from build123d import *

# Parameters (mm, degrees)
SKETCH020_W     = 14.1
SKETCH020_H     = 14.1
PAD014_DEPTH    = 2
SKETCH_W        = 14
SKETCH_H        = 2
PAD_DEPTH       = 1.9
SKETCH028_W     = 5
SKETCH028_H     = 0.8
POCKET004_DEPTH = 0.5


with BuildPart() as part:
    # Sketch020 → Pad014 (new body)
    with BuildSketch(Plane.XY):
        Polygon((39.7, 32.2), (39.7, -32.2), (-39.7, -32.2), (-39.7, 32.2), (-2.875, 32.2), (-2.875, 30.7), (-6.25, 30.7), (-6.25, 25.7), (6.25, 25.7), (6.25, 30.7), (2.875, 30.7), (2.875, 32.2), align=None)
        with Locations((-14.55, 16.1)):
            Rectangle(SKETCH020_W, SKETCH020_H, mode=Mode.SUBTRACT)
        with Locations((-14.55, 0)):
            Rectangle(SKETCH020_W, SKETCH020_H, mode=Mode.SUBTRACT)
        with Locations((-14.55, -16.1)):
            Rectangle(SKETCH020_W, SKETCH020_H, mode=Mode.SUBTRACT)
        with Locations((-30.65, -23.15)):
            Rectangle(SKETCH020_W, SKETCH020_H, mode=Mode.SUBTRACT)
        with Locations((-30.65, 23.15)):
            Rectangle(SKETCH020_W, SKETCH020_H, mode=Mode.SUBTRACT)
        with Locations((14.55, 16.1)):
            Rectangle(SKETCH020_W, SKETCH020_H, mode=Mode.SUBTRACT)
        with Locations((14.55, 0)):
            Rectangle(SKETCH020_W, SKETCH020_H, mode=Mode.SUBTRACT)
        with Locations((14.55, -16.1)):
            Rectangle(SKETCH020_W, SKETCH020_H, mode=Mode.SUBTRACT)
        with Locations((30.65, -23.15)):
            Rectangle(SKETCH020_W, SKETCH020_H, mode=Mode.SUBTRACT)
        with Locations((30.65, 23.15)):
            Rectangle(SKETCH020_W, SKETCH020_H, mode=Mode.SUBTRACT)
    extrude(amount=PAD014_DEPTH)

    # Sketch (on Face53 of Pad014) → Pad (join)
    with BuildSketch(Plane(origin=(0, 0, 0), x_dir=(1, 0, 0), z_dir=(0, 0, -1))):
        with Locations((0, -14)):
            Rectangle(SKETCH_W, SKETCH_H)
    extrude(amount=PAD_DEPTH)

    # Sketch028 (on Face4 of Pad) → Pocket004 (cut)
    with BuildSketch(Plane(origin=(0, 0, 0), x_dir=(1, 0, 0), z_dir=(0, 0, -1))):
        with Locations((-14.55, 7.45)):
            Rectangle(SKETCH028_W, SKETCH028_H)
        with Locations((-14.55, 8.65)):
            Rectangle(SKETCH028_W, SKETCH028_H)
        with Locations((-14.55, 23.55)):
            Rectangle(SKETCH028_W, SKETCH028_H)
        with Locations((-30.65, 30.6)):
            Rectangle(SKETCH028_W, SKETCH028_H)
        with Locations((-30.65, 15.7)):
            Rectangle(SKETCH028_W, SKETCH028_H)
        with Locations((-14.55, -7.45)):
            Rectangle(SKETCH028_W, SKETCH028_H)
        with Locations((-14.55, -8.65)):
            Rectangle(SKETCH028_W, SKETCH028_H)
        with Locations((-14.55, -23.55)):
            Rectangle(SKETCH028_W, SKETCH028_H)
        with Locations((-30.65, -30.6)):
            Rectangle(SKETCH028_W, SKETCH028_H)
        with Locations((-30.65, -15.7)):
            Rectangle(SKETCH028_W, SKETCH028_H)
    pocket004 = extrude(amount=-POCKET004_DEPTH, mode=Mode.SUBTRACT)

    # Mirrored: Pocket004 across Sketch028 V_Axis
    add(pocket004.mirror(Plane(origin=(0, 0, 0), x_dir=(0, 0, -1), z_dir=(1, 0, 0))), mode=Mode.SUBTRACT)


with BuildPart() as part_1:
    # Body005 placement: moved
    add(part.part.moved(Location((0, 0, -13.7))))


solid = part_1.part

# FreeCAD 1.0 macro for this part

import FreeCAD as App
import Part
import Sketcher

V = App.Vector
Q = App.Units.Quantity


def add_polygon(sketch, points):
    """Adds a closed chain of lines whose ends are joined by coincident constraints."""
    first, n = sketch.GeometryCount, len(points)
    for a, b in zip(points, points[1:] + points[:1]):
        sketch.addGeometry(Part.LineSegment(App.Vector(*a, 0), App.Vector(*b, 0)), False)
    for i in range(n):
        sketch.addConstraint(Sketcher.Constraint("Coincident", first + i, 2, first + (i + 1) % n, 1))

doc = App.newDocument("Part")
body = doc.addObject("PartDesign::Body", "Body")

# Sketch on XY plane
sketch1 = body.newObject("Sketcher::SketchObject", "Sketch")
sketch1.AttachmentSupport = (doc.getObject("XY_Plane"), [""])
sketch1.MapMode = "FlatFace"
add_polygon(sketch1, [(39.7, -32.2), (39.7, 32.2), (2.875, 32.2), (2.875, 30.7), (6.25, 30.7), (6.25, 25.7), (-6.25, 25.7), (-6.25, 30.7), (-2.875, 30.7), (-2.875, 32.2), (-39.7, 32.2), (-39.7, -32.2)])  # lines 0-11
add_polygon(sketch1, [(23.6, -30.2), (23.6, -16.1), (37.7, -16.1), (37.7, -30.2)])  # lines 12-15
add_polygon(sketch1, [(7.5, -23.15), (7.5, -9.05), (21.6, -9.05), (21.6, -23.15)])  # lines 16-19
add_polygon(sketch1, [(-21.6, -23.15), (-21.6, -9.05), (-7.5, -9.05), (-7.5, -23.15)])  # lines 20-23
add_polygon(sketch1, [(-37.7, -30.2), (-37.7, -16.1), (-23.6, -16.1), (-23.6, -30.2)])  # lines 24-27
add_polygon(sketch1, [(7.5, -7.05), (7.5, 7.05), (21.6, 7.05), (21.6, -7.05)])  # lines 28-31
add_polygon(sketch1, [(23.6, 16.1), (23.6, 30.2), (37.7, 30.2), (37.7, 16.1)])  # lines 32-35
add_polygon(sketch1, [(7.5, 9.05), (7.5, 23.15), (21.6, 23.15), (21.6, 9.05)])  # lines 36-39
add_polygon(sketch1, [(-21.6, -7.05), (-21.6, 7.05), (-7.5, 7.05), (-7.5, -7.05)])  # lines 40-43
add_polygon(sketch1, [(-21.6, 9.05), (-21.6, 23.15), (-7.5, 23.15), (-7.5, 9.05)])  # lines 44-47
add_polygon(sketch1, [(-37.7, 16.1), (-37.7, 30.2), (-23.6, 30.2), (-23.6, 16.1)])  # lines 48-51
sketch1.addConstraint([
    Sketcher.Constraint("Vertical", 0),
    Sketcher.Constraint("Horizontal", 1),
    Sketcher.Constraint("Vertical", 2),
    Sketcher.Constraint("Horizontal", 3),
    Sketcher.Constraint("Vertical", 4),
    Sketcher.Constraint("Horizontal", 5),
    Sketcher.Constraint("Vertical", 6),
    Sketcher.Constraint("Horizontal", 7),
    Sketcher.Constraint("Vertical", 8),
    Sketcher.Constraint("Horizontal", 9),
    Sketcher.Constraint("Vertical", 10),
    Sketcher.Constraint("Horizontal", 11),
    Sketcher.Constraint("Vertical", 12),
    Sketcher.Constraint("Horizontal", 13),
    Sketcher.Constraint("Vertical", 14),
    Sketcher.Constraint("Horizontal", 15),
    Sketcher.Constraint("Vertical", 16),
    Sketcher.Constraint("Horizontal", 17),
    Sketcher.Constraint("Vertical", 18),
    Sketcher.Constraint("Horizontal", 19),
    Sketcher.Constraint("Vertical", 20),
    Sketcher.Constraint("Horizontal", 21),
    Sketcher.Constraint("Vertical", 22),
    Sketcher.Constraint("Horizontal", 23),
    Sketcher.Constraint("Vertical", 24),
    Sketcher.Constraint("Horizontal", 25),
    Sketcher.Constraint("Vertical", 26),
    Sketcher.Constraint("Horizontal", 27),
    Sketcher.Constraint("Vertical", 28),
    Sketcher.Constraint("Horizontal", 29),
    Sketcher.Constraint("Vertical", 30),
    Sketcher.Constraint("Horizontal", 31),
    Sketcher.Constraint("Vertical", 32),
    Sketcher.Constraint("Horizontal", 33),
    Sketcher.Constraint("Vertical", 34),
    Sketcher.Constraint("Horizontal", 35),
    Sketcher.Constraint("Vertical", 36),
    Sketcher.Constraint("Horizontal", 37),
    Sketcher.Constraint("Vertical", 38),
    Sketcher.Constraint("Horizontal", 39),
    Sketcher.Constraint("Vertical", 40),
    Sketcher.Constraint("Horizontal", 41),
    Sketcher.Constraint("Vertical", 42),
    Sketcher.Constraint("Horizontal", 43),
    Sketcher.Constraint("Vertical", 44),
    Sketcher.Constraint("Horizontal", 45),
    Sketcher.Constraint("Vertical", 46),
    Sketcher.Constraint("Horizontal", 47),
    Sketcher.Constraint("Vertical", 48),
    Sketcher.Constraint("Horizontal", 49),
    Sketcher.Constraint("Vertical", 50),
    Sketcher.Constraint("Horizontal", 51),
    Sketcher.Constraint("Symmetric", 0, 2, 10, 2, -1, 1),
    Sketcher.Constraint("Symmetric", 26, 2, 32, 2, -1, 1),
    Sketcher.Constraint("Symmetric", 24, 2, 34, 2, -1, 1),
    Sketcher.Constraint("Symmetric", 22, 2, 36, 2, -1, 1),
    Sketcher.Constraint("Symmetric", 20, 2, 38, 2, -1, 1),
    Sketcher.Constraint("Symmetric", 30, 2, 40, 2, -1, 1),
    Sketcher.Constraint("Symmetric", 28, 2, 42, 2, -1, 1),
    Sketcher.Constraint("Symmetric", 18, 2, 44, 2, -1, 1),
    Sketcher.Constraint("Symmetric", 16, 2, 46, 2, -1, 1),
    Sketcher.Constraint("Symmetric", 14, 2, 48, 2, -1, 1),
    Sketcher.Constraint("Symmetric", 12, 2, 50, 2, -1, 1),
    Sketcher.Constraint("Symmetric", 3, 2, 6, 2, -2),
    Sketcher.Constraint("Symmetric", 1, 2, 8, 2, -2),
    Sketcher.Constraint("Symmetric", 17, 2, 20, 2, -2),
    Sketcher.Constraint("Symmetric", 19, 2, 22, 2, -2),
    Sketcher.Constraint("Symmetric", 13, 2, 24, 2, -2),
    Sketcher.Constraint("Symmetric", 15, 2, 26, 2, -2),
    Sketcher.Constraint("Horizontal", 29, 2, 40, 2),
    Sketcher.Constraint("Vertical", 19, 2, 28, 2),
    Sketcher.Constraint("Vertical", 18, 2, 29, 2),
    Sketcher.Constraint("Equal", 15, 17),
    Sketcher.Constraint("Equal", 51, 12),
    Sketcher.Constraint("Equal", 14, 16),
    Sketcher.Constraint("Equal", 26, 28),
    Sketcher.Constraint("DistanceY", 4, 2, 4, 1, Q("5 mm")),
    Sketcher.Constraint("DistanceX", 5, 2, 5, 1, Q("12.5 mm")),
    Sketcher.Constraint("DistanceX", 11, 1, 11, 2, Q("79.4 mm")),
    Sketcher.Constraint("DistanceX", 13, 1, 13, 2, Q("14.1 mm")),
    Sketcher.Constraint("DistanceY", 0, 1, 0, 2, Q("64.4 mm")),
    Sketcher.Constraint("DistanceY", 2, 2, 2, 1, Q("1.5 mm")),
    Sketcher.Constraint("DistanceX", 13, 2, 11, 2, Q("2 mm")),
    Sketcher.Constraint("DistanceY", 11, 2, 14, 2, Q("2 mm")),
    Sketcher.Constraint("DistanceX", 17, 2, 12, 2, Q("2 mm")),
    Sketcher.Constraint("DistanceY", 17, 2, 30, 2, Q("2 mm")),
    Sketcher.Constraint("DistanceX", 1, 2, 1, 1, Q("36.825 mm")),
])
pad1 = body.newObject("PartDesign::Pad", "Pad")
pad1.Profile = sketch1
pad1.Length = 2

# Sketch on XY plane
sketch2 = body.newObject("Sketcher::SketchObject", "Sketch001")
sketch2.AttachmentSupport = (doc.getObject("XY_Plane"), [""])
sketch2.MapMode = "FlatFace"
add_polygon(sketch2, [(-7, 13), (-7, 15), (7, 15), (7, 13)])  # lines 0-3
sketch2.addConstraint([
    Sketcher.Constraint("Vertical", 0),
    Sketcher.Constraint("Horizontal", 1),
    Sketcher.Constraint("Vertical", 2),
    Sketcher.Constraint("Horizontal", 3),
    Sketcher.Constraint("DistanceX", 1, 1, 1, 2, Q("14 mm")),
    Sketcher.Constraint("DistanceY", 0, 1, 0, 2, Q("2 mm")),
    Sketcher.Constraint("DistanceX", 0, 2, -1, 1, Q("7 mm")),
    Sketcher.Constraint("DistanceY", -1, 1, 0, 2, Q("15 mm")),
])
pad2 = body.newObject("PartDesign::Pad", "Pad001")
pad2.Profile = sketch2
pad2.Length = 1.9
pad2.Reversed = True

# Sketch on XY plane
sketch3 = body.newObject("Sketcher::SketchObject", "Sketch002")
sketch3.AttachmentSupport = (doc.getObject("XY_Plane"), [""])
sketch3.MapMode = "FlatFace"
add_polygon(sketch3, [(-17.05, -7.85), (-17.05, -7.05), (-12.05, -7.05), (-12.05, -7.85)])  # lines 0-3
add_polygon(sketch3, [(-17.05, -9.05), (-17.05, -8.25), (-12.05, -8.25), (-12.05, -9.05)])  # lines 4-7
add_polygon(sketch3, [(-17.05, -23.95), (-17.05, -23.15), (-12.05, -23.15), (-12.05, -23.95)])  # lines 8-11
add_polygon(sketch3, [(-33.15, -31), (-33.15, -30.2), (-28.15, -30.2), (-28.15, -31)])  # lines 12-15
add_polygon(sketch3, [(-33.15, -16.1), (-33.15, -15.3), (-28.15, -15.3), (-28.15, -16.1)])  # lines 16-19
add_polygon(sketch3, [(-17.05, 7.05), (-17.05, 7.85), (-12.05, 7.85), (-12.05, 7.05)])  # lines 20-23
add_polygon(sketch3, [(-17.05, 8.25), (-17.05, 9.05), (-12.05, 9.05), (-12.05, 8.25)])  # lines 24-27
add_polygon(sketch3, [(-17.05, 23.15), (-17.05, 23.95), (-12.05, 23.95), (-12.05, 23.15)])  # lines 28-31
add_polygon(sketch3, [(-33.15, 30.2), (-33.15, 31), (-28.15, 31), (-28.15, 30.2)])  # lines 32-35
add_polygon(sketch3, [(-33.15, 15.3), (-33.15, 16.1), (-28.15, 16.1), (-28.15, 15.3)])  # lines 36-39
sketch3.addConstraint([
    Sketcher.Constraint("Vertical", 0),
    Sketcher.Constraint("Horizontal", 1),
    Sketcher.Constraint("Vertical", 2),
    Sketcher.Constraint("Horizontal", 3),
    Sketcher.Constraint("Vertical", 4),
    Sketcher.Constraint("Horizontal", 5),
    Sketcher.Constraint("Vertical", 6),
    Sketcher.Constraint("Horizontal", 7),
    Sketcher.Constraint("Vertical", 8),
    Sketcher.Constraint("Horizontal", 9),
    Sketcher.Constraint("Vertical", 10),
    Sketcher.Constraint("Horizontal", 11),
    Sketcher.Constraint("Vertical", 12),
    Sketcher.Constraint("Horizontal", 13),
    Sketcher.Constraint("Vertical", 14),
    Sketcher.Constraint("Horizontal", 15),
    Sketcher.Constraint("Vertical", 16),
    Sketcher.Constraint("Horizontal", 17),
    Sketcher.Constraint("Vertical", 18),
    Sketcher.Constraint("Horizontal", 19),
    Sketcher.Constraint("Vertical", 20),
    Sketcher.Constraint("Horizontal", 21),
    Sketcher.Constraint("Vertical", 22),
    Sketcher.Constraint("Horizontal", 23),
    Sketcher.Constraint("Vertical", 24),
    Sketcher.Constraint("Horizontal", 25),
    Sketcher.Constraint("Vertical", 26),
    Sketcher.Constraint("Horizontal", 27),
    Sketcher.Constraint("Vertical", 28),
    Sketcher.Constraint("Horizontal", 29),
    Sketcher.Constraint("Vertical", 30),
    Sketcher.Constraint("Horizontal", 31),
    Sketcher.Constraint("Vertical", 32),
    Sketcher.Constraint("Horizontal", 33),
    Sketcher.Constraint("Vertical", 34),
    Sketcher.Constraint("Horizontal", 35),
    Sketcher.Constraint("Vertical", 36),
    Sketcher.Constraint("Horizontal", 37),
    Sketcher.Constraint("Vertical", 38),
    Sketcher.Constraint("Horizontal", 39),
    Sketcher.Constraint("Symmetric", 3, 2, 20, 2, -1),
    Sketcher.Constraint("Symmetric", 1, 2, 22, 2, -1),
    Sketcher.Constraint("Symmetric", 7, 2, 24, 2, -1),
    Sketcher.Constraint("Symmetric", 5, 2, 26, 2, -1),
    Sketcher.Constraint("Symmetric", 11, 2, 28, 2, -1),
    Sketcher.Constraint("Symmetric", 9, 2, 30, 2, -1),
    Sketcher.Constraint("Symmetric", 15, 2, 32, 2, -1),
    Sketcher.Constraint("Symmetric", 13, 2, 34, 2, -1),
    Sketcher.Constraint("Symmetric", 19, 2, 36, 2, -1),
    Sketcher.Constraint("Symmetric", 17, 2, 38, 2, -1),
    Sketcher.Constraint("Vertical", 3, 2, 4, 2),
    Sketcher.Constraint("Vertical", 2, 2, 5, 2),
    Sketcher.Constraint("Vertical", 7, 2, 8, 2),
    Sketcher.Constraint("Vertical", 6, 2, 9, 2),
    Sketcher.Constraint("Vertical", 15, 2, 16, 2),
    Sketcher.Constraint("Vertical", 14, 2, 17, 2),
    Sketcher.Constraint("Equal", 11, 13),
    Sketcher.Constraint("Equal", 2, 4),
    Sketcher.Constraint("Equal", 6, 8),
    Sketcher.Constraint("Equal", 10, 12),
    Sketcher.Constraint("Equal", 14, 16),
    Sketcher.Constraint("DistanceX", 1, 1, 1, 2, Q("5 mm")),
    Sketcher.Constraint("DistanceY", 0, 1, 0, 2, Q("0.8 mm")),
    Sketcher.Constraint("DistanceY", 14, 2, -1, 1, Q("31 mm")),
    Sketcher.Constraint("DistanceY", 6, 2, 1, 2, Q("2 mm")),
    Sketcher.Constraint("DistanceY", 16, 2, -1, 1, Q("15.3 mm")),
    Sketcher.Constraint("DistanceY", 8, 2, 7, 2, Q("14.1 mm")),
    Sketcher.Constraint("DistanceX", 12, 2, 11, 2, Q("16.1 mm")),
    Sketcher.Constraint("DistanceY", 0, 2, 20, 2, Q("14.9 mm")),
    Sketcher.Constraint("DistanceX", 0, 2, -1, 1, Q("17.05 mm")),
])
pocket1 = body.newObject("PartDesign::Pocket", "Pocket")
pocket1.Profile = sketch3
pocket1.Length = 0.5
pocket1.Reversed = True
doc.recompute()

mirrored = body.newObject("PartDesign::Mirrored", "Mirrored")
mirrored.Originals = [pocket1]
mirrored.MirrorPlane = (doc.getObject("YZ_Plane"), [""])
body.Tip = mirrored
body2 = doc.addObject("PartDesign::Body", "Body001")
doc.recompute()

body.Placement = App.Placement(V(0, 0, -13.7), App.Rotation(V(0, 0, 1), 0))
boolean = body2.newObject("PartDesign::Boolean", "Boolean")
boolean.Type = "Fuse"
boolean.addObjects([body])

doc.recompute()
